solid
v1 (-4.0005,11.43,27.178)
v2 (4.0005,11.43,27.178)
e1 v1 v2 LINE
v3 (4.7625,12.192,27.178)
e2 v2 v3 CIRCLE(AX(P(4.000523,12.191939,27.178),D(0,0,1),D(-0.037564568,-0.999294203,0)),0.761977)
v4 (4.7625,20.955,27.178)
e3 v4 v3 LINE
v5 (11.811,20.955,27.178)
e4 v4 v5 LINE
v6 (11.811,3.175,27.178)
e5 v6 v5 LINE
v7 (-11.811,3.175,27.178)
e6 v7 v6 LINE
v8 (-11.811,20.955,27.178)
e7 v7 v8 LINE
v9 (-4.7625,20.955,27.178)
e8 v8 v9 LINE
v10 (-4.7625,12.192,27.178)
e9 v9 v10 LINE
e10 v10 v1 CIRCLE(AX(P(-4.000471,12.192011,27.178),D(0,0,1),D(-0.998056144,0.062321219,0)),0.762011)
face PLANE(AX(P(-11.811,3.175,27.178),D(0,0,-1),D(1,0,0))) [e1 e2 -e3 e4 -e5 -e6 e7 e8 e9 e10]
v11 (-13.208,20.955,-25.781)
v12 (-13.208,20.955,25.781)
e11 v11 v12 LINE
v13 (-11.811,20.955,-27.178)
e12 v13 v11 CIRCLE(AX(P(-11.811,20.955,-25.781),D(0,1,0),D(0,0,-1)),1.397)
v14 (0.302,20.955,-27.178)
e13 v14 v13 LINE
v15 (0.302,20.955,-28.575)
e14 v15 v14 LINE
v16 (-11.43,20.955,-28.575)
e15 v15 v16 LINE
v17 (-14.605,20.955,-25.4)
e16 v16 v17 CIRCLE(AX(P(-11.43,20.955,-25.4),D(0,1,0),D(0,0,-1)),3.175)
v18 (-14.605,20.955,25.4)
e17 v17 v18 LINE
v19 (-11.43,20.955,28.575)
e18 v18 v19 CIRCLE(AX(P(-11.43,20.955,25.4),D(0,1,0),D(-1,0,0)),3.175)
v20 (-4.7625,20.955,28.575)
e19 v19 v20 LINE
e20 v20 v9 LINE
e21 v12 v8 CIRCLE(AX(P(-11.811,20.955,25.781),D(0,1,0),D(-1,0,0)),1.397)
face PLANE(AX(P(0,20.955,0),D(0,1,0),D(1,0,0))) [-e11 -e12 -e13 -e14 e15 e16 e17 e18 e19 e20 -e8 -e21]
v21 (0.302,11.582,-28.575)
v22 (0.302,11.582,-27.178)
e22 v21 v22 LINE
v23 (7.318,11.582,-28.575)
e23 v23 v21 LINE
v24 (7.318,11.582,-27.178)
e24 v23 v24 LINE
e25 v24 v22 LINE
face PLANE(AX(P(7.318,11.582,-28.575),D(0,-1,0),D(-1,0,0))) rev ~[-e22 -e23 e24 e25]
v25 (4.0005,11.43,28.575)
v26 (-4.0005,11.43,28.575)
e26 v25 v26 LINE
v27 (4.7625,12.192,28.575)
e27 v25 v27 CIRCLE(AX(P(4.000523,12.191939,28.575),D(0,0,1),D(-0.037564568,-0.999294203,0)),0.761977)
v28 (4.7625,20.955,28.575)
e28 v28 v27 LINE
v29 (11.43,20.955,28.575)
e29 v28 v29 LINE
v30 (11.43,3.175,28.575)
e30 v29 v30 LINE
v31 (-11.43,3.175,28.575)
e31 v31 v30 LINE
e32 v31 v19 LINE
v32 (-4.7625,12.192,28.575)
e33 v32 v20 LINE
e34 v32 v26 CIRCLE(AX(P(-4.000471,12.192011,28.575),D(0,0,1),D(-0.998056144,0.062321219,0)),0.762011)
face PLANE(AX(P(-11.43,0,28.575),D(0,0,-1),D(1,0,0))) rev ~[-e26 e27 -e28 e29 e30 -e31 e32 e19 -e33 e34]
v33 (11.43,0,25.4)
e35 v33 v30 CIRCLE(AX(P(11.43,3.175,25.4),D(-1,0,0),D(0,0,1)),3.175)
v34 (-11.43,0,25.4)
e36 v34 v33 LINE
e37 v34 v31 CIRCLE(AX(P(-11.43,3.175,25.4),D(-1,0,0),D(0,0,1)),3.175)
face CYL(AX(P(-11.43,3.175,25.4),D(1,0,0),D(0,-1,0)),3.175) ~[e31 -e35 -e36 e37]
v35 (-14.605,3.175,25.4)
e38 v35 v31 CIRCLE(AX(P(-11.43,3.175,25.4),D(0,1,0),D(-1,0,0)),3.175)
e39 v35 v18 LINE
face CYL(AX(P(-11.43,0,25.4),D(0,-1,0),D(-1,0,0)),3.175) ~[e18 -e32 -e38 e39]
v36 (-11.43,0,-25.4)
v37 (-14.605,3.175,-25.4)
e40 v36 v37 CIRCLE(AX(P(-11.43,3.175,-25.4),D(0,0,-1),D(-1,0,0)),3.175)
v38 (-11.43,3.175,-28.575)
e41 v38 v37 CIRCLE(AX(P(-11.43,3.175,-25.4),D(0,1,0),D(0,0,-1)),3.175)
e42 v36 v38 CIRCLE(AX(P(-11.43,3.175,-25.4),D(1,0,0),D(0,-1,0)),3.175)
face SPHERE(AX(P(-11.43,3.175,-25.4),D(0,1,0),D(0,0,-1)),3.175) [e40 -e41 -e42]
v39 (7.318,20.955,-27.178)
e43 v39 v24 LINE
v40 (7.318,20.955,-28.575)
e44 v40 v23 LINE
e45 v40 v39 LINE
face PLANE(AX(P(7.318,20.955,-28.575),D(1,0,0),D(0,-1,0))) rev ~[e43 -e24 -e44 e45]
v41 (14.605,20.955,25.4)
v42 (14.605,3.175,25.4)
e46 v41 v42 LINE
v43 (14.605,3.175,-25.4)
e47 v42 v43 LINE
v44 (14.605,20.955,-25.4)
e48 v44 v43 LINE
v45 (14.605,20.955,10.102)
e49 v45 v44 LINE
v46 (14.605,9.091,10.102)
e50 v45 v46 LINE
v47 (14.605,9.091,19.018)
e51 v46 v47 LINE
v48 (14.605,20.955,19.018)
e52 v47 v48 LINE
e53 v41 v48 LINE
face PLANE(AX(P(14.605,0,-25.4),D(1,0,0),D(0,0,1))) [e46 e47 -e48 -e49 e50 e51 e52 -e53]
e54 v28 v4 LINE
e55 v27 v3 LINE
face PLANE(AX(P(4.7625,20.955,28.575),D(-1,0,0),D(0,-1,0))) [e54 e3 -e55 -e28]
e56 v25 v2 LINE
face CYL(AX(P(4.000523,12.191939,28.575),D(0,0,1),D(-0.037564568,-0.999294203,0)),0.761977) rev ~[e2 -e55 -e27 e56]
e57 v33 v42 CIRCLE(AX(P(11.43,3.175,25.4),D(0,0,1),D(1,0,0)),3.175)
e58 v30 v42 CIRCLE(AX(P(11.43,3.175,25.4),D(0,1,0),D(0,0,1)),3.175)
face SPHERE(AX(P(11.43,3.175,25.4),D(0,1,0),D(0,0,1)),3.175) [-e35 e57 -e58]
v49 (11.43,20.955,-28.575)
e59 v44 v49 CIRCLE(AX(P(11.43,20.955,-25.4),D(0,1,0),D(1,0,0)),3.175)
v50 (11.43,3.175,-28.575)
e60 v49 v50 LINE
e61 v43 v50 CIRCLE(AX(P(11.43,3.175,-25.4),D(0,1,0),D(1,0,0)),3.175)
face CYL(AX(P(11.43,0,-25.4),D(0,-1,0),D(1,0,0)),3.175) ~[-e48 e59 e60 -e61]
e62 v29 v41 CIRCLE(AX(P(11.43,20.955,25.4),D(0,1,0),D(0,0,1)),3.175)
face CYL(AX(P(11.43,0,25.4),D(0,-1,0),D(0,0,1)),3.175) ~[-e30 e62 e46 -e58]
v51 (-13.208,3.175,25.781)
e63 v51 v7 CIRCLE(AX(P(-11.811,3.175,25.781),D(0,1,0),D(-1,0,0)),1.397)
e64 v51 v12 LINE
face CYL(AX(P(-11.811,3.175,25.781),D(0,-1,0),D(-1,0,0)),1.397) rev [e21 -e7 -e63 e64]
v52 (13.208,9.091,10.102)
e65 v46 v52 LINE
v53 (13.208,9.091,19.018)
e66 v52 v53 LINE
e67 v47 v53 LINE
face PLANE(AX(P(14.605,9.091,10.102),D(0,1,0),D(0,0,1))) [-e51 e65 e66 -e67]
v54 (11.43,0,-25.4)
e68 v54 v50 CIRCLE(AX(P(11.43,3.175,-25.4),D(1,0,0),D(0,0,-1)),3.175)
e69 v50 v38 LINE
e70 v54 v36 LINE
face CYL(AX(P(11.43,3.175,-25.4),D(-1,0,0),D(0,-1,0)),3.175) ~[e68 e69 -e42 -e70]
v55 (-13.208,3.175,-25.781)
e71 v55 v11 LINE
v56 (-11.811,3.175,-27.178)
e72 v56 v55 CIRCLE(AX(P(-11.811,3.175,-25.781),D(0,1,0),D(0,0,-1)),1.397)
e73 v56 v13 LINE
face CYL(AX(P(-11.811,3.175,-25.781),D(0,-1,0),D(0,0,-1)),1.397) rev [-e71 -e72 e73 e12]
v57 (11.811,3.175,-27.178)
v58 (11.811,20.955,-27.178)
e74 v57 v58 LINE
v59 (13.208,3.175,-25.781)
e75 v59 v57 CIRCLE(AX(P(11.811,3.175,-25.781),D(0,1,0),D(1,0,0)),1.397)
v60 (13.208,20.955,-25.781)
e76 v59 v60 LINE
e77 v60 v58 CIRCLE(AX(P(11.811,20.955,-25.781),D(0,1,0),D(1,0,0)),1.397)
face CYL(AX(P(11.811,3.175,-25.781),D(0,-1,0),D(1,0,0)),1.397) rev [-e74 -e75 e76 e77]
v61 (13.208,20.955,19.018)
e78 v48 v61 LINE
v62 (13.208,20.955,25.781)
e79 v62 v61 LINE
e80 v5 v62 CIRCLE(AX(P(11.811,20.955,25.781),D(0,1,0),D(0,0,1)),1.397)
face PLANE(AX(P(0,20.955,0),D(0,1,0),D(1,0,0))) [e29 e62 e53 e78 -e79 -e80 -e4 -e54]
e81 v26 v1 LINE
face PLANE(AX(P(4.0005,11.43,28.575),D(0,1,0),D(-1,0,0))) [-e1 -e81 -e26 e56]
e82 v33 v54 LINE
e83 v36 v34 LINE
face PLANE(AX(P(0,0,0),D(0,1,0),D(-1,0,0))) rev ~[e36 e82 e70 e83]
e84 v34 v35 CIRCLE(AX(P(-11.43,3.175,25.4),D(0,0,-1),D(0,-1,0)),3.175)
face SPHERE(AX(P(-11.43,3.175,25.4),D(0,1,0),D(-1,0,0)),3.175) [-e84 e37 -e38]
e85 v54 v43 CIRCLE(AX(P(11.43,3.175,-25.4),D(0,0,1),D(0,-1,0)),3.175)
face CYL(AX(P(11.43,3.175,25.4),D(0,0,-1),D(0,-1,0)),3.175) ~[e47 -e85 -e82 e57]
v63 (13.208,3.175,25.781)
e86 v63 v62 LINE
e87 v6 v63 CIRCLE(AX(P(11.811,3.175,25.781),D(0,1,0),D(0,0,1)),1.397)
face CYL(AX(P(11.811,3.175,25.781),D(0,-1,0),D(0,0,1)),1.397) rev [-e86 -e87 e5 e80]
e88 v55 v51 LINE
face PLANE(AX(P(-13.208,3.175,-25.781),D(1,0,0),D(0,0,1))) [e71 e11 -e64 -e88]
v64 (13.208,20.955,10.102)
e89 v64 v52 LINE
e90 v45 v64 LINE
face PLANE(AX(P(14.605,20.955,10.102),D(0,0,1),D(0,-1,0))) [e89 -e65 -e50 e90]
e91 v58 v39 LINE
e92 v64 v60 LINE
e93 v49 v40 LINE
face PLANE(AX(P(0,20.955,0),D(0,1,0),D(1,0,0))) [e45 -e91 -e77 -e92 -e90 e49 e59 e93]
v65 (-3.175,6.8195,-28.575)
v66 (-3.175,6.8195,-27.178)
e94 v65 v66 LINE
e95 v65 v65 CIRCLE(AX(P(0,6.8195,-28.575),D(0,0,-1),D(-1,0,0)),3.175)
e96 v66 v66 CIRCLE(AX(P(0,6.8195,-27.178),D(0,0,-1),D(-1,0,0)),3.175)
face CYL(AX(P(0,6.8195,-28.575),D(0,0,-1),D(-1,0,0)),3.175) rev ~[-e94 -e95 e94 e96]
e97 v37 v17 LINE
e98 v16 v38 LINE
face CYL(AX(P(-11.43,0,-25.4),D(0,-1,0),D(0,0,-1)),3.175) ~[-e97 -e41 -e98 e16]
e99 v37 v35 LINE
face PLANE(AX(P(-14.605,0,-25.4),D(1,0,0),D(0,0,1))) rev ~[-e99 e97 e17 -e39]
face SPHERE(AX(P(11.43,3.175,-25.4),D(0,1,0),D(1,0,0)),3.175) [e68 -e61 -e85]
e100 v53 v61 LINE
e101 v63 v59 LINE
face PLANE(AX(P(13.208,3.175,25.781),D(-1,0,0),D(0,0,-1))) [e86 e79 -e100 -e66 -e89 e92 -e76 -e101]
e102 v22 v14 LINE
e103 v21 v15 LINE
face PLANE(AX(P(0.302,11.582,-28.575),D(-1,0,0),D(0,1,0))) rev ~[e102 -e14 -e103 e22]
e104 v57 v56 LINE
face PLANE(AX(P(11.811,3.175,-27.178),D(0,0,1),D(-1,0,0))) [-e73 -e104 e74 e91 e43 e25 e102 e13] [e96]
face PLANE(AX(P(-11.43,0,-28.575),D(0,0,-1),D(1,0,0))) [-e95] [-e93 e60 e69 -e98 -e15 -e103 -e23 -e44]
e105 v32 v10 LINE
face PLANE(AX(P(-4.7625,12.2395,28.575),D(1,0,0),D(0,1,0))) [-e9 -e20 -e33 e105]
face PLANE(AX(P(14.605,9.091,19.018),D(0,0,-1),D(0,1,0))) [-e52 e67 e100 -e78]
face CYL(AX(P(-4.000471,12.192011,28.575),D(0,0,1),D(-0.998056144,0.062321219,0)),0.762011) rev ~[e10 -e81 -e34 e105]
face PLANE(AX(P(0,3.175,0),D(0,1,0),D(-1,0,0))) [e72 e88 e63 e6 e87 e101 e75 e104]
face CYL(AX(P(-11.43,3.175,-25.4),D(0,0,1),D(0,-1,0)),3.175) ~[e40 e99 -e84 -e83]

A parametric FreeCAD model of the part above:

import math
import FreeCAD as App
import Part
import Sketcher

V = App.Vector
Q = App.Units.Quantity


def edges_at(feature, points):
    """Names of the edges that pass closest to the given points."""
    edges = feature.Shape.Edges
    near = lambda p: min(range(len(edges)), key=lambda i: edges[i].distToShape(Part.Vertex(*p))[0])
    return sorted({f"Edge{near(p) + 1}" for p in points})


def add_polygon(sketch, points):
    """Adds a closed chain of lines whose ends are joined by coincident constraints."""
    first, n = sketch.GeometryCount, len(points)
    for a, b in zip(points, points[1:] + points[:1]):
        sketch.addGeometry(Part.LineSegment(App.Vector(*a, 0), App.Vector(*b, 0)), False)
    for i in range(n):
        sketch.addConstraint(Sketcher.Constraint("Coincident", first + i, 2, first + (i + 1) % n, 1))

doc = App.newDocument("Part")
body = doc.addObject("PartDesign::Body", "Body")

# Sketch on XZ plane
sketch1 = doc.addObject("Sketcher::SketchObject", "Sketch")
body.addObject(sketch1)
sketch1.AttachmentSupport = (doc.XZ_Plane, [""])
sketch1.MapMode = "FlatFace"
sketch1.addGeometry(Part.ArcOfCircle(Part.Circle(V(-11.4, -25.4, 0), V(0, 0, 1), 3.2), math.radians(180), math.radians(270)), False)
sketch1.addGeometry(Part.LineSegment(V(-14.6, -25.4, 0), V(-14.6, 25.4, 0)), False)
sketch1.addGeometry(Part.ArcOfCircle(Part.Circle(V(-11.4, 25.4, 0), V(0, 0, 1), 3.2), math.radians(90), math.radians(180)), False)
sketch1.addGeometry(Part.LineSegment(V(-11.4, 28.6, 0), V(11.4, 28.6, 0)), False)
sketch1.addGeometry(Part.ArcOfCircle(Part.Circle(V(11.4, 25.4, 0), V(0, 0, 1), 3.2), math.radians(0), math.radians(90)), False)
sketch1.addGeometry(Part.LineSegment(V(14.6, 25.4, 0), V(14.6, -25.4, 0)), False)
sketch1.addGeometry(Part.ArcOfCircle(Part.Circle(V(11.4, -25.4, 0), V(0, 0, 1), 3.2), math.radians(-90), math.radians(0)), False)
sketch1.addGeometry(Part.LineSegment(V(11.4, -28.6, 0), V(-11.4, -28.6, 0)), False)
sketch1.addConstraint(Sketcher.Constraint("Tangent", 0, 1, 1, 1))
sketch1.addConstraint(Sketcher.Constraint("Tangent", 1, 2, 2, 2))
sketch1.addConstraint(Sketcher.Constraint("Tangent", 2, 1, 3, 1))
sketch1.addConstraint(Sketcher.Constraint("Tangent", 3, 2, 4, 2))
sketch1.addConstraint(Sketcher.Constraint("Tangent", 4, 1, 5, 1))
sketch1.addConstraint(Sketcher.Constraint("Tangent", 5, 2, 6, 2))
sketch1.addConstraint(Sketcher.Constraint("Tangent", 6, 1, 7, 1))
sketch1.addConstraint(Sketcher.Constraint("Tangent", 7, 2, 0, 2))
sketch1.addConstraint(Sketcher.Constraint("Vertical", 1))
sketch1.addConstraint(Sketcher.Constraint("Horizontal", 3))
sketch1.addConstraint(Sketcher.Constraint("Vertical", 5))
sketch1.addConstraint(Sketcher.Constraint("Horizontal", 7))
sketch1.addConstraint(Sketcher.Constraint("Equal", 0, 2))
sketch1.addConstraint(Sketcher.Constraint("Equal", 2, 4))
sketch1.addConstraint(Sketcher.Constraint("Equal", 4, 6))
sketch1.addConstraint(Sketcher.Constraint("Symmetric", 0, 3, 4, 3, -1, 1))
sketch1.addConstraint(Sketcher.Constraint("DistanceY", 1, 1, 1, 2, Q("2 in")))
sketch1.addConstraint(Sketcher.Constraint("DistanceX", 3, 1, 3, 2, Q("0.9 in")))
sketch1.addConstraint(Sketcher.Constraint("Radius", 0, Q("0.125 in")))
pad1 = doc.addObject("PartDesign::Pad", "Pad")
body.addObject(pad1)
pad1.Profile = sketch1
pad1.Length = Q("0.125 in")
pad1.Reversed = True

# Sketch on XZ plane
sketch2 = doc.addObject("Sketcher::SketchObject", "Sketch001")
body.addObject(sketch2)
sketch2.AttachmentSupport = (doc.XZ_Plane, [""])
sketch2.MapMode = "FlatFace"
sketch2.AttachmentOffset = App.Placement(V(0, 0, -0.125 * 25.4), App.Rotation())
sketch2.addGeometry(Part.ArcOfCircle(Part.Circle(V(-11.4, -25.4, 0), V(0, 0, 1), 3.2), math.radians(180), math.radians(270)), False)
sketch2.addGeometry(Part.LineSegment(V(-14.6, -25.4, 0), V(-14.6, 25.4, 0)), False)
sketch2.addGeometry(Part.ArcOfCircle(Part.Circle(V(-11.4, 25.4, 0), V(0, 0, 1), 3.2), math.radians(90), math.radians(180)), False)
sketch2.addGeometry(Part.LineSegment(V(-11.4, 28.6, 0), V(11.4, 28.6, 0)), False)
sketch2.addGeometry(Part.ArcOfCircle(Part.Circle(V(11.4, 25.4, 0), V(0, 0, 1), 3.2), math.radians(0), math.radians(90)), False)
sketch2.addGeometry(Part.LineSegment(V(14.6, 25.4, 0), V(14.6, -25.4, 0)), False)
sketch2.addGeometry(Part.ArcOfCircle(Part.Circle(V(11.4, -25.4, 0), V(0, 0, 1), 3.2), math.radians(-90), math.radians(0)), False)
sketch2.addGeometry(Part.LineSegment(V(11.4, -28.6, 0), V(-11.4, -28.6, 0)), False)
sketch2.addGeometry(Part.LineSegment(V(-13.2, 25.8, 0), V(-13.2, -25.8, 0)), False)
sketch2.addGeometry(Part.ArcOfCircle(Part.Circle(V(-11.8, -25.8, 0), V(0, 0, 1), 1.4), math.radians(180), math.radians(270)), False)
sketch2.addGeometry(Part.LineSegment(V(-11.8, -27.2, 0), V(11.8, -27.2, 0)), False)
sketch2.addGeometry(Part.ArcOfCircle(Part.Circle(V(11.8, -25.8, 0), V(0, 0, 1), 1.4), math.radians(-90), math.radians(0)), False)
sketch2.addGeometry(Part.LineSegment(V(13.2, -25.8, 0), V(13.2, 25.8, 0)), False)
sketch2.addGeometry(Part.ArcOfCircle(Part.Circle(V(11.8, 25.8, 0), V(0, 0, 1), 1.4), math.radians(0), math.radians(90)), False)
sketch2.addGeometry(Part.LineSegment(V(11.8, 27.2, 0), V(-11.8, 27.2, 0)), False)
sketch2.addGeometry(Part.ArcOfCircle(Part.Circle(V(-11.8, 25.8, 0), V(0, 0, 1), 1.4), math.radians(90), math.radians(180)), False)
sketch2.addConstraint(Sketcher.Constraint("Tangent", 0, 1, 1, 1))
sketch2.addConstraint(Sketcher.Constraint("Tangent", 1, 2, 2, 2))
sketch2.addConstraint(Sketcher.Constraint("Tangent", 2, 1, 3, 1))
sketch2.addConstraint(Sketcher.Constraint("Tangent", 3, 2, 4, 2))
sketch2.addConstraint(Sketcher.Constraint("Tangent", 4, 1, 5, 1))
sketch2.addConstraint(Sketcher.Constraint("Tangent", 5, 2, 6, 2))
sketch2.addConstraint(Sketcher.Constraint("Tangent", 6, 1, 7, 1))
sketch2.addConstraint(Sketcher.Constraint("Tangent", 7, 2, 0, 2))
sketch2.addConstraint(Sketcher.Constraint("Tangent", 8, 2, 9, 1))
sketch2.addConstraint(Sketcher.Constraint("Tangent", 9, 2, 10, 1))
sketch2.addConstraint(Sketcher.Constraint("Tangent", 10, 2, 11, 1))
sketch2.addConstraint(Sketcher.Constraint("Tangent", 11, 2, 12, 1))
sketch2.addConstraint(Sketcher.Constraint("Tangent", 12, 2, 13, 1))
sketch2.addConstraint(Sketcher.Constraint("Tangent", 13, 2, 14, 1))
sketch2.addConstraint(Sketcher.Constraint("Tangent", 14, 2, 15, 1))
sketch2.addConstraint(Sketcher.Constraint("Tangent", 15, 2, 8, 1))
sketch2.addConstraint(Sketcher.Constraint("Vertical", 1))
sketch2.addConstraint(Sketcher.Constraint("Horizontal", 3))
sketch2.addConstraint(Sketcher.Constraint("Vertical", 5))
sketch2.addConstraint(Sketcher.Constraint("Horizontal", 7))
sketch2.addConstraint(Sketcher.Constraint("Vertical", 8))
sketch2.addConstraint(Sketcher.Constraint("Horizontal", 10))
sketch2.addConstraint(Sketcher.Constraint("Vertical", 12))
sketch2.addConstraint(Sketcher.Constraint("Horizontal", 14))
sketch2.addConstraint(Sketcher.Constraint("Equal", 0, 2))
sketch2.addConstraint(Sketcher.Constraint("Equal", 2, 4))
sketch2.addConstraint(Sketcher.Constraint("Equal", 4, 6))
sketch2.addConstraint(Sketcher.Constraint("Equal", 9, 11))
sketch2.addConstraint(Sketcher.Constraint("Equal", 11, 13))
sketch2.addConstraint(Sketcher.Constraint("Equal", 13, 15))
sketch2.addConstraint(Sketcher.Constraint("Symmetric", 0, 3, 4, 3, -1, 1))
sketch2.addConstraint(Sketcher.Constraint("Symmetric", 9, 3, 13, 3, -1, 1))
sketch2.addConstraint(Sketcher.Constraint("Radius", 9, Q("0.055 in")))
sketch2.addConstraint(Sketcher.Constraint("DistanceY", 1, 1, 1, 2, Q("2 in")))
sketch2.addConstraint(Sketcher.Constraint("DistanceX", 3, 1, 3, 2, Q("0.9 in")))
sketch2.addConstraint(Sketcher.Constraint("Radius", 0, Q("0.125 in")))
sketch2.addConstraint(Sketcher.Constraint("DistanceX", 0, 1, 8, 2, Q("0.055 in")))
sketch2.addConstraint(Sketcher.Constraint("DistanceY", 7, 2, 9, 2, Q("0.055 in")))
pad2 = doc.addObject("PartDesign::Pad", "Pad001")
body.addObject(pad2)
pad2.Profile = sketch2
pad2.Length = Q("0.7 in")
pad2.Reversed = True

# Sketch on XY plane
sketch3 = doc.addObject("Sketcher::SketchObject", "Sketch002")
body.addObject(sketch3)
sketch3.AttachmentSupport = (doc.XY_Plane, [""])
sketch3.MapMode = "FlatFace"
sketch3.AttachmentOffset = App.Placement(V(0, 0, 1.125 * 25.4), App.Rotation())
sketch3.addGeometry(Part.LineSegment(V(-4, 11.4, 0), V(4, 11.4, 0)), False)
sketch3.addGeometry(Part.ArcOfCircle(Part.Circle(V(4, 12.2, 0), V(0, 0, 1), 0.8), math.radians(-90), math.radians(0)), False)
sketch3.addGeometry(Part.LineSegment(V(4.8, 12.2, 0), V(4.8, 21, 0)), False)
sketch3.addGeometry(Part.LineSegment(V(4.8, 21, 0), V(-4.8, 21, 0)), False)
sketch3.addGeometry(Part.LineSegment(V(-4.8, 21, 0), V(-4.8, 12.2, 0)), False)
sketch3.addGeometry(Part.ArcOfCircle(Part.Circle(V(-4, 12.2, 0), V(0, 0, 1), 0.8), math.radians(180), math.radians(270)), False)
sketch3.addConstraint(Sketcher.Constraint("Tangent", 0, 2, 1, 1))
sketch3.addConstraint(Sketcher.Constraint("Tangent", 1, 2, 2, 1))
sketch3.addConstraint(Sketcher.Constraint("Coincident", 2, 2, 3, 1))
sketch3.addConstraint(Sketcher.Constraint("Coincident", 3, 2, 4, 1))
sketch3.addConstraint(Sketcher.Constraint("Tangent", 4, 2, 5, 1))
sketch3.addConstraint(Sketcher.Constraint("Tangent", 5, 2, 0, 1))
sketch3.addConstraint(Sketcher.Constraint("Horizontal", 0))
sketch3.addConstraint(Sketcher.Constraint("Vertical", 2))
sketch3.addConstraint(Sketcher.Constraint("Horizontal", 3))
sketch3.addConstraint(Sketcher.Constraint("Vertical", 4))
sketch3.addConstraint(Sketcher.Constraint("Equal", 1, 5))
sketch3.addConstraint(Sketcher.Constraint("Radius", 1, Q("0.03 in")))
sketch3.addConstraint(Sketcher.Constraint("DistanceX", 3, 2, 3, 1, Q("0.375 in")))
sketch3.addConstraint(Sketcher.Constraint("DistanceY", -1, 1, 0, 2, Q("0.45 in")))
sketch3.addConstraint(Sketcher.Constraint("DistanceY", 0, 2, 2, 2, Q("0.375 in")))
sketch3.addConstraint(Sketcher.Constraint("DistanceX", -1, 1, 1, 2, Q("0.1875 in")))
pocket1 = doc.addObject("PartDesign::Pocket", "Pocket")
body.addObject(pocket1)
pocket1.Profile = sketch3
pocket1.Length = Q("0.055 in")

# Sketch on YZ plane
sketch4 = doc.addObject("Sketcher::SketchObject", "Sketch003")
body.addObject(sketch4)
sketch4.AttachmentSupport = (doc.YZ_Plane, [""])
sketch4.MapMode = "FlatFace"
sketch4.AttachmentOffset = App.Placement(V(0, 0, 0.575 * 25.4), App.Rotation())
add_polygon(sketch4, [(9, 10), (21, 10), (21, 19), (9, 19)])  # lines 0-3
sketch4.addConstraint(Sketcher.Constraint("Horizontal", 0))
sketch4.addConstraint(Sketcher.Constraint("Vertical", 1))
sketch4.addConstraint(Sketcher.Constraint("Horizontal", 2))
sketch4.addConstraint(Sketcher.Constraint("Vertical", 3))
sketch4.addConstraint(Sketcher.Constraint("DistanceX", 0, 1, 0, 2, Q("11.864 mm")))
sketch4.addConstraint(Sketcher.Constraint("DistanceY", 1, 1, 1, 2, Q("8.916 mm")))
sketch4.addConstraint(Sketcher.Constraint("DistanceX", -1, 1, 0, 2, Q("0.825 in")))
sketch4.addConstraint(Sketcher.Constraint("DistanceY", -1, 1, 0, 2, Q("10.102 mm")))
pocket2 = doc.addObject("PartDesign::Pocket", "Pocket001")
body.addObject(pocket2)
pocket2.Profile = sketch4
pocket2.Length = Q("0.055 in")

# Sketch on XY plane
sketch5 = doc.addObject("Sketcher::SketchObject", "Sketch004")
body.addObject(sketch5)
sketch5.AttachmentSupport = (doc.XY_Plane, [""])
sketch5.MapMode = "FlatFace"
sketch5.AttachmentOffset = App.Placement(V(0, 0, -1.125 * 25.4), App.Rotation())
add_polygon(sketch5, [(0.3, 11.6), (0.3, 21), (7.3, 21), (7.3, 11.6)])  # lines 0-3
sketch5.addGeometry(Part.Circle(V(0, 6.8, 0), V(0, 0, 1), 3.2), False)  # 4
sketch5.addConstraint(Sketcher.Constraint("Vertical", 0))
sketch5.addConstraint(Sketcher.Constraint("Horizontal", 1))
sketch5.addConstraint(Sketcher.Constraint("Vertical", 2))
sketch5.addConstraint(Sketcher.Constraint("Horizontal", 3))
sketch5.addConstraint(Sketcher.Constraint("PointOnObject", 4, 3, -2))
sketch5.addConstraint(Sketcher.Constraint("Diameter", 4, Q("0.25 in")))
sketch5.addConstraint(Sketcher.Constraint("DistanceY", 4, 3, 2, 2, Q("0.1875 in")))
sketch5.addConstraint(Sketcher.Constraint("DistanceX", 1, 1, 1, 2, Q("7.016 mm")))
sketch5.addConstraint(Sketcher.Constraint("DistanceY", 0, 1, 0, 2, Q("9.373 mm")))
sketch5.addConstraint(Sketcher.Constraint("DistanceY", -1, 1, 0, 2, Q("0.825 in")))
sketch5.addConstraint(Sketcher.Constraint("DistanceX", -1, 1, 0, 2, Q("0.0119 in")))
pocket3 = doc.addObject("PartDesign::Pocket", "Pocket002")
body.addObject(pocket3)
pocket3.Profile = sketch5
pocket3.Length = Q("0.055 in")
pocket3.Reversed = True
doc.recompute()

fillet = doc.addObject("PartDesign::Fillet", "Fillet")
body.addObject(fillet)
fillet.Base = (pocket3, edges_at(pocket3, [
    (13.675, 0, 27.645),
    (14.605, 0, 0),
    (13.675, 0, -27.645),
    (0, 0, -28.575),
    (-13.675, 0, -27.645),
    (-14.605, 0, 0),
    (-13.675, 0, 27.645),
    (0, 0, 28.575),
]))
fillet.Radius = Q("0.125 in")

doc.recompute()
